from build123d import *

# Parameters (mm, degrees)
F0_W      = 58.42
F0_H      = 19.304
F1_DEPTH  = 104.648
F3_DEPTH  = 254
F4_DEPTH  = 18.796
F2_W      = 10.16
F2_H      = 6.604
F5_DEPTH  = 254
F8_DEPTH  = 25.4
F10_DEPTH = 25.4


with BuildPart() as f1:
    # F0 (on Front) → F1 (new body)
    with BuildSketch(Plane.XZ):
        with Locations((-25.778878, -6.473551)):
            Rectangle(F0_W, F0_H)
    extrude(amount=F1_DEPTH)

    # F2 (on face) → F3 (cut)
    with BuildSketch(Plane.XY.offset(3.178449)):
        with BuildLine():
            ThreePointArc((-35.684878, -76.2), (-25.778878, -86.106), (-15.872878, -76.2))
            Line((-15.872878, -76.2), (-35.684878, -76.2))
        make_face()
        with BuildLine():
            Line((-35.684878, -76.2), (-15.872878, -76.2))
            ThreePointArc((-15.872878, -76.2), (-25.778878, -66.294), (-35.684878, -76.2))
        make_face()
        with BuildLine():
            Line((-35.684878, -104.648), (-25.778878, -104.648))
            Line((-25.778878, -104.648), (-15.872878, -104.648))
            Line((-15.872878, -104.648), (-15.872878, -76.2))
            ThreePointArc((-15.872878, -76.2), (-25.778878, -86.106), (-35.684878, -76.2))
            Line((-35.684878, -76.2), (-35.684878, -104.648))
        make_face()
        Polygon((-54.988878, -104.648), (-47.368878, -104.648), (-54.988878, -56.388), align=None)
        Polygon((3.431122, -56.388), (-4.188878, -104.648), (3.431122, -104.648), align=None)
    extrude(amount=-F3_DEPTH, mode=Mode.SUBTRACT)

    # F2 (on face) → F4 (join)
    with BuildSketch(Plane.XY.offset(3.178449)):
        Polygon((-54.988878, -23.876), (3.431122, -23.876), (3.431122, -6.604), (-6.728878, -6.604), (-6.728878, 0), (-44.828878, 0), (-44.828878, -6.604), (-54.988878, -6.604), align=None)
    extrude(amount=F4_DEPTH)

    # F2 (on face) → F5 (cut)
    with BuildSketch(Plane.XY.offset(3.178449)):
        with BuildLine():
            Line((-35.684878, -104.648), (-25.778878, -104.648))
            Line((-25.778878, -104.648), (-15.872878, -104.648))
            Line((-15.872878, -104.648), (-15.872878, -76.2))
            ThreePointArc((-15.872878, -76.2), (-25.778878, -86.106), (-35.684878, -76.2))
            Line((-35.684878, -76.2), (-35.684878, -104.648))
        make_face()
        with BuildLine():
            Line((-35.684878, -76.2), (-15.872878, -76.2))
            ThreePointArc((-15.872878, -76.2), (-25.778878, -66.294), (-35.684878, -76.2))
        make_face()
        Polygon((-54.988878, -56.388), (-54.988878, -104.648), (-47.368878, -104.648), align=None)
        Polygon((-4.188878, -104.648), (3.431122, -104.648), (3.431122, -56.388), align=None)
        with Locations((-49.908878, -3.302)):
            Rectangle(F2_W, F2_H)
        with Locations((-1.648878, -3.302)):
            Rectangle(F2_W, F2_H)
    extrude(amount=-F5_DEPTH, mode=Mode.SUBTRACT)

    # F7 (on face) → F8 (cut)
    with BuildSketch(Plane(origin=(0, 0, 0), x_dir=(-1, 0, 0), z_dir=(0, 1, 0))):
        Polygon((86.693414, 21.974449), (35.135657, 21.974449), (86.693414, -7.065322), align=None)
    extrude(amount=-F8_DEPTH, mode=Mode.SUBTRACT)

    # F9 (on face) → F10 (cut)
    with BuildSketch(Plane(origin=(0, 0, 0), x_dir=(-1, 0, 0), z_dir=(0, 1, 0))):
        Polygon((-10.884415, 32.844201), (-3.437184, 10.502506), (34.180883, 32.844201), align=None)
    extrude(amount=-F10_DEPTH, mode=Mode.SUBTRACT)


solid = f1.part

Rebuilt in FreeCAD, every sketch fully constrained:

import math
import FreeCAD as App
import Part
import Sketcher
from FreeCAD import Vector
Q = App.Units.Quantity


def add_polygon(sketch, points):
    """Adds a closed chain of lines whose ends are joined by coincident constraints."""
    first, n = sketch.GeometryCount, len(points)
    for a, b in zip(points, points[1:] + points[:1]):
        sketch.addGeometry(Part.LineSegment(App.Vector(*a, 0), App.Vector(*b, 0)), False)
    for i in range(n):
        sketch.addConstraint(Sketcher.Constraint("Coincident", first + i, 2, first + (i + 1) % n, 1))

doc = App.newDocument("Part")
body = doc.addObject("PartDesign::Body", "Body")

# Sketch on XZ plane
sketch1 = body.newObject("Sketcher::SketchObject", "Sketch")
sketch1.AttachmentSupport = (doc.getObject("XZ_Plane"), [""])
sketch1.MapMode = "FlatFace"
add_polygon(sketch1, [(-55, 3), (-55, -16), (3, -16), (3, 3)])  # lines 0-3
sketch1.addConstraint([
    Sketcher.Constraint("Vertical", 0),
    Sketcher.Constraint("Horizontal", 1),
    Sketcher.Constraint("Vertical", 2),
    Sketcher.Constraint("Horizontal", 3),
    Sketcher.Constraint("DistanceX", 1, 1, 1, 2, Q("2.3 in")),
    Sketcher.Constraint("DistanceY", 0, 2, 0, 1, Q("0.76 in")),
    Sketcher.Constraint("DistanceY", 0, 2, -1, 1, Q("16.125551 mm")),
    Sketcher.Constraint("DistanceX", -1, 1, 1, 2, Q("3.431122 mm")),
])
pad1 = body.newObject("PartDesign::Pad", "Pad")
pad1.Profile = sketch1
pad1.Length = Q("4.12 in")

# Sketch on XY plane
sketch2 = body.newObject("Sketcher::SketchObject", "Sketch001")
sketch2.AttachmentSupport = (doc.getObject("XY_Plane"), [""])
sketch2.MapMode = "FlatFace"
sketch2.AttachmentOffset = App.Placement(Vector(0, 0, 3.178449), App.Rotation())
sketch2.addGeometry(Part.ArcOfCircle(Part.Circle(Vector(-26, -76, 0), Vector(0, 0, 1), 10), math.radians(0), math.radians(180)), False)  # 0
sketch2.addGeometry(Part.LineSegment(Vector(-36, -76, 0), Vector(-36, -105, 0)), False)  # 1
sketch2.addGeometry(Part.LineSegment(Vector(-36, -105, 0), Vector(-16, -105, 0)), False)  # 2
sketch2.addGeometry(Part.LineSegment(Vector(-16, -105, 0), Vector(-16, -76, 0)), False)  # 3
add_polygon(sketch2, [(-55, -105), (-47, -105), (-55, -56)])  # lines 4-6
add_polygon(sketch2, [(3, -56), (-4, -105), (3, -105)])  # lines 7-9
sketch2.addConstraint([
    Sketcher.Constraint("Tangent", 0, 2, 1, 1),
    Sketcher.Constraint("Coincident", 1, 2, 2, 1),
    Sketcher.Constraint("Coincident", 2, 2, 3, 1),
    Sketcher.Constraint("Tangent", 3, 2, 0, 1),
    Sketcher.Constraint("Vertical", 1),
    Sketcher.Constraint("Horizontal", 2),
    Sketcher.Constraint("Vertical", 3),
    Sketcher.Constraint("Horizontal", 4),
    Sketcher.Constraint("Vertical", 6),
    Sketcher.Constraint("Horizontal", 8),
    Sketcher.Constraint("Vertical", 9),
    Sketcher.Constraint("Horizontal", 2, 2, 4, 2),
    Sketcher.Constraint("Horizontal", 6, 2, 7, 2),
    Sketcher.Constraint("Horizontal", 5, 2, 9, 2),
    Sketcher.Constraint("Equal", 4, 8),
    Sketcher.Constraint("Radius", 0, Q("0.39 in")),
    Sketcher.Constraint("DistanceX", 4, 1, 4, 2, Q("0.3 in")),
    Sketcher.Constraint("DistanceY", 6, 2, 6, 1, Q("1.9 in")),
    Sketcher.Constraint("DistanceY", 0, 3, -1, 1, Q("3 in")),
    Sketcher.Constraint("DistanceY", 1, 2, 1, 1, Q("1.12 in")),
    Sketcher.Constraint("DistanceX", 4, 2, 1, 2, Q("0.46 in")),
    Sketcher.Constraint("DistanceX", 2, 2, 7, 2, Q("0.46 in")),
    Sketcher.Constraint("DistanceX", 4, 2, -1, 1, Q("47.368878 mm")),
])
pocket1 = body.newObject("PartDesign::Pocket", "Pocket")
pocket1.Profile = sketch2
pocket1.Length = Q("10 in")

# Sketch on XY plane
sketch3 = body.newObject("Sketcher::SketchObject", "Sketch002")
sketch3.AttachmentSupport = (doc.getObject("XY_Plane"), [""])
sketch3.MapMode = "FlatFace"
sketch3.AttachmentOffset = App.Placement(Vector(0, 0, 3.178449), App.Rotation())
add_polygon(sketch3, [(-55, -24), (3, -24), (3, -7), (-7, -7), (-7, 0), (-45, 0), (-45, -7), (-55, -7)])  # lines 0-7
sketch3.addConstraint([
    Sketcher.Constraint("Horizontal", 0),
    Sketcher.Constraint("Vertical", 1),
    Sketcher.Constraint("Horizontal", 2),
    Sketcher.Constraint("Vertical", 3),
    Sketcher.Constraint("Horizontal", 4),
    Sketcher.Constraint("Vertical", 5),
    Sketcher.Constraint("Horizontal", 6),
    Sketcher.Constraint("Vertical", 7),
    Sketcher.Constraint("PointOnObject", 3, 2, -1),
    Sketcher.Constraint("Horizontal", 2, 2, 5, 2),
    Sketcher.Constraint("Equal", 2, 6),
    Sketcher.Constraint("DistanceX", 0, 1, 0, 2, Q("2.3 in")),
    Sketcher.Constraint("DistanceX", 2, 2, 2, 1, Q("0.4 in")),
    Sketcher.Constraint("DistanceY", 1, 1, 1, 2, Q("0.68 in")),
    Sketcher.Constraint("DistanceY", 3, 1, 3, 2, Q("0.26 in")),
    Sketcher.Constraint("DistanceX", -1, 1, 0, 2, Q("3.431122 mm")),
])
pad2 = body.newObject("PartDesign::Pad", "Pad001")
pad2.Profile = sketch3
pad2.Length = Q("0.74 in")

# Sketch on XY plane
sketch4 = body.newObject("Sketcher::SketchObject", "Sketch003")
sketch4.AttachmentSupport = (doc.getObject("XY_Plane"), [""])
sketch4.MapMode = "FlatFace"
sketch4.AttachmentOffset = App.Placement(Vector(0, 0, 3.178449), App.Rotation())
sketch4.addGeometry(Part.LineSegment(Vector(-36, -105, 0), Vector(-16, -105, 0)), False)  # 0
sketch4.addGeometry(Part.LineSegment(Vector(-16, -105, 0), Vector(-16, -76, 0)), False)  # 1
sketch4.addGeometry(Part.ArcOfCircle(Part.Circle(Vector(-26, -76, 0), Vector(0, 0, 1), 10), math.radians(180), math.radians(360)), False)  # 2
sketch4.addGeometry(Part.LineSegment(Vector(-36, -76, 0), Vector(-36, -105, 0)), False)  # 3
sketch4.addGeometry(Part.LineSegment(Vector(-36, -76, 0), Vector(-16, -76, 0)), False)  # 4
sketch4.addGeometry(Part.ArcOfCircle(Part.Circle(Vector(-26, -76, 0), Vector(0, 0, 1), 10), math.radians(0), math.radians(180)), False)  # 5
add_polygon(sketch4, [(-55, -56), (-55, -105), (-47, -105)])  # lines 6-8
add_polygon(sketch4, [(-4, -105), (3, -105), (3, -56)])  # lines 9-11
add_polygon(sketch4, [(-55, 0), (-55, -7), (-45, -7), (-45, 0)])  # lines 12-15
add_polygon(sketch4, [(-7, 0), (-7, -7), (3, -7), (3, 0)])  # lines 16-19
sketch4.addConstraint([
    Sketcher.Constraint("Coincident", 0, 2, 1, 1),
    Sketcher.Constraint("Tangent", 1, 2, 2, 2),
    Sketcher.Constraint("Tangent", 2, 1, 3, 1),
    Sketcher.Constraint("Coincident", 3, 2, 0, 1),
    Sketcher.Constraint("Coincident", 4, 1, 5, 2),
    Sketcher.Constraint("Coincident", 5, 1, 4, 2),
    Sketcher.Constraint("Horizontal", 0),
    Sketcher.Constraint("Vertical", 1),
    Sketcher.Constraint("Vertical", 3),
    Sketcher.Constraint("Horizontal", 4),
    Sketcher.Constraint("Vertical", 6),
    Sketcher.Constraint("Horizontal", 7),
    Sketcher.Constraint("Horizontal", 9),
    Sketcher.Constraint("Vertical", 10),
    Sketcher.Constraint("Vertical", 12),
    Sketcher.Constraint("Horizontal", 13),
    Sketcher.Constraint("Vertical", 14),
    Sketcher.Constraint("Horizontal", 15),
    Sketcher.Constraint("Vertical", 16),
    Sketcher.Constraint("Horizontal", 17),
    Sketcher.Constraint("Vertical", 18),
    Sketcher.Constraint("Horizontal", 19),
    Sketcher.Constraint("Coincident", 5, 3, 2, 3),
    Sketcher.Constraint("Coincident", 4, 1, 2, 1),
    Sketcher.Constraint("PointOnObject", 14, 2, -1),
    Sketcher.Constraint("PointOnObject", 18, 2, -1),
    Sketcher.Constraint("Horizontal", 3, 2, 6, 2),
    Sketcher.Constraint("Horizontal", 7, 2, 9, 2),
    Sketcher.Constraint("Horizontal", 8, 2, 10, 2),
    Sketcher.Constraint("Horizontal", 13, 2, 16, 2),
    Sketcher.Constraint("Vertical", 8, 2, 12, 2),
    Sketcher.Constraint("Vertical", 10, 2, 17, 2),
    Sketcher.Constraint("Equal", 7, 9),
    Sketcher.Constraint("Equal", 15, 17),
    Sketcher.Constraint("Radius", 2, Q("0.39 in")),
    Sketcher.Constraint("DistanceX", 7, 1, 7, 2, Q("0.3 in")),
    Sketcher.Constraint("DistanceX", 13, 1, 13, 2, Q("0.4 in")),
    Sketcher.Constraint("DistanceY", 6, 2, 6, 1, Q("1.9 in")),
    Sketcher.Constraint("DistanceY", 2, 3, -1, 1, Q("3 in")),
    Sketcher.Constraint("DistanceY", 1, 1, 1, 2, Q("1.12 in")),
    Sketcher.Constraint("DistanceY", 12, 2, 12, 1, Q("0.26 in")),
    Sketcher.Constraint("DistanceX", 13, 2, 10, 2, Q("1.9 in")),
    Sketcher.Constraint("DistanceX", 6, 2, 3, 2, Q("0.76 in")),
    Sketcher.Constraint("DistanceX", 7, 2, -1, 1, Q("47.368878 mm")),
])
pocket2 = body.newObject("PartDesign::Pocket", "Pocket001")
pocket2.Profile = sketch4
pocket2.Length = Q("10 in")

# Sketch on XZ plane
sketch5 = body.newObject("Sketcher::SketchObject", "Sketch004")
sketch5.AttachmentSupport = (doc.getObject("XZ_Plane"), [""])
sketch5.MapMode = "FlatFace"
add_polygon(sketch5, [(-87, 22), (-35, 22), (-87, -7)])  # lines 0-2
sketch5.addConstraint([
    Sketcher.Constraint("Horizontal", 0),
    Sketcher.Constraint("Vertical", 2),
    Sketcher.Constraint("DistanceY", 2, 1, 2, 2, Q("29.039771 mm")),
    Sketcher.Constraint("DistanceX", 0, 1, 0, 2, Q("51.557757 mm")),
    Sketcher.Constraint("DistanceY", -1, 1, 0, 2, Q("21.974449 mm")),
    Sketcher.Constraint("DistanceX", 0, 2, -1, 1, Q("35.135657 mm")),
])
pocket3 = body.newObject("PartDesign::Pocket", "Pocket002")
pocket3.Profile = sketch5
pocket3.Length = Q("1 in")
pocket3.Reversed = True

# Sketch on XZ plane
sketch6 = body.newObject("Sketcher::SketchObject", "Sketch005")
sketch6.AttachmentSupport = (doc.getObject("XZ_Plane"), [""])
sketch6.MapMode = "FlatFace"
add_polygon(sketch6, [(11, 33), (3, 11), (-34, 33)])  # lines 0-2
sketch6.addConstraint([
    Sketcher.Constraint("Horizontal", 2),
    Sketcher.Constraint("DistanceY", -1, 1, 1, 2, Q("32.844201 mm")),
    Sketcher.Constraint("DistanceX", 2, 1, 2, 2, Q("45.065298 mm")),
    Sketcher.Constraint("DistanceX", 0, 2, 2, 2, Q("7.447231 mm")),
    Sketcher.Constraint("Distance", 0, Q("23.550214 mm")),
    Sketcher.Constraint("DistanceX", -1, 1, 0, 2, Q("3.437184 mm")),
])
pocket4 = body.newObject("PartDesign::Pocket", "Pocket003")
pocket4.Profile = sketch6
pocket4.Length = Q("1 in")
pocket4.Reversed = True

doc.recompute()
